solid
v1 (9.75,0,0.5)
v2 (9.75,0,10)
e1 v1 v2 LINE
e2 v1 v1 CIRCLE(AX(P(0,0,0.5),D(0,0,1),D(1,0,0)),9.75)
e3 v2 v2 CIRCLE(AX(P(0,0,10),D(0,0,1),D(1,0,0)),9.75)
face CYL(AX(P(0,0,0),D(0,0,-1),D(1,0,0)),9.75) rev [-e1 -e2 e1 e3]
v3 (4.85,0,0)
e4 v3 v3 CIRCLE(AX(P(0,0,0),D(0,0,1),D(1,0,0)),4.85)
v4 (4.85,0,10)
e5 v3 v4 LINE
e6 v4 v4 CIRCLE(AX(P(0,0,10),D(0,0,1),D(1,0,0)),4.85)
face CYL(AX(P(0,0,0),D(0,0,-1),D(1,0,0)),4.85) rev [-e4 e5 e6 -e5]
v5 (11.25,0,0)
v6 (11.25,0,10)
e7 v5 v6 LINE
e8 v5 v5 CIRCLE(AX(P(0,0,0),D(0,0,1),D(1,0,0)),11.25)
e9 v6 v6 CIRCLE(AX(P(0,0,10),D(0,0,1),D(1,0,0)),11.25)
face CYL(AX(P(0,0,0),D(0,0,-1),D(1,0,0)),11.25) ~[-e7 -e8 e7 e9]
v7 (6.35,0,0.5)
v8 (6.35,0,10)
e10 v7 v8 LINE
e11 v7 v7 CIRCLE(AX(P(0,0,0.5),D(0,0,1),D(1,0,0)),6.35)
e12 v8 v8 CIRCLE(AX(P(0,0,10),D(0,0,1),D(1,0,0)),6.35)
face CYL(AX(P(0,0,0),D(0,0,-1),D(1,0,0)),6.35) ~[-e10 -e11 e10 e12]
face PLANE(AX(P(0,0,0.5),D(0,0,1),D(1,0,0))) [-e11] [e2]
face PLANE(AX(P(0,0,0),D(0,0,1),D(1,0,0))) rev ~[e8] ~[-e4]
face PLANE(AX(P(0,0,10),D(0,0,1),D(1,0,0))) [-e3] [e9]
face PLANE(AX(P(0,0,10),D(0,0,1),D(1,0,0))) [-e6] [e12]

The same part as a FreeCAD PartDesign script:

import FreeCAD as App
import Part
import Sketcher

doc = App.newDocument("Part")
body = doc.addObject("PartDesign::Body", "Body")

# Sketch on XY plane
sketch1 = body.newObject("Sketcher::SketchObject", "Sketch")
sketch1.AttachmentSupport = (doc.getObject("XY_Plane"), [""])
sketch1.MapMode = "FlatFace"
sketch1.addGeometry([
    Part.Circle(App.Vector(0, 0, 0), App.Vector(0, 0, 1), 11),
    Part.Circle(App.Vector(0, 0, 0), App.Vector(0, 0, 1), 10),
], False)
sketch1.addConstraint([
    Sketcher.Constraint("Coincident", 0, 3, -1, 1),
    Sketcher.Constraint("Coincident", 1, 3, -1, 1),
    Sketcher.Constraint("Diameter", 0, 22.5),
    Sketcher.Constraint("Diameter", 1, 19.5),
])
pad1 = body.newObject("PartDesign::Pad", "Pad")
pad1.Profile = sketch1
pad1.Length = 10
body2 = doc.addObject("PartDesign::Body", "Body001")

# Sketch on XY plane
sketch2 = body2.newObject("Sketcher::SketchObject", "Sketch001")
sketch2.AttachmentSupport = (doc.getObject("XY_Plane001"), [""])
sketch2.MapMode = "FlatFace"
sketch2.addGeometry([
    Part.Circle(App.Vector(0, 0, 0), App.Vector(0, 0, 1), 6.3),
    Part.Circle(App.Vector(0, 0, 0), App.Vector(0, 0, 1), 4.9),
], False)
sketch2.addConstraint([
    Sketcher.Constraint("Coincident", 0, 3, -1, 1),
    Sketcher.Constraint("Coincident", 1, 3, -1, 1),
    Sketcher.Constraint("Diameter", 0, 12.7),
    Sketcher.Constraint("Diameter", 1, 9.7),
])
pad2 = body2.newObject("PartDesign::Pad", "Pad001")
pad2.Profile = sketch2
pad2.Length = 10
body.AllowCompound = True
doc.recompute()

boolean = body.newObject("PartDesign::Boolean", "Boolean")
boolean.Type = "Fuse"
boolean.addObjects([body2])

# Sketch on XY plane
sketch3 = body.newObject("Sketcher::SketchObject", "Sketch002")
sketch3.AttachmentSupport = (doc.getObject("XY_Plane"), [""])
sketch3.MapMode = "FlatFace"
sketch3.addGeometry([
    Part.Circle(App.Vector(0, 0, 0), App.Vector(0, 0, 1), 10),
    Part.Circle(App.Vector(0, 0, 0), App.Vector(0, 0, 1), 6),
], False)
sketch3.addConstraint([
    Sketcher.Constraint("Coincident", 0, 3, -1, 1),
    Sketcher.Constraint("Coincident", 1, 3, -1, 1),
    Sketcher.Constraint("Diameter", 0, 19.5),
    Sketcher.Constraint("Diameter", 1, 12.7),
])
pad3 = body.newObject("PartDesign::Pad", "Pad002")
pad3.Profile = sketch3
pad3.Length = 0.5

doc.recompute()
